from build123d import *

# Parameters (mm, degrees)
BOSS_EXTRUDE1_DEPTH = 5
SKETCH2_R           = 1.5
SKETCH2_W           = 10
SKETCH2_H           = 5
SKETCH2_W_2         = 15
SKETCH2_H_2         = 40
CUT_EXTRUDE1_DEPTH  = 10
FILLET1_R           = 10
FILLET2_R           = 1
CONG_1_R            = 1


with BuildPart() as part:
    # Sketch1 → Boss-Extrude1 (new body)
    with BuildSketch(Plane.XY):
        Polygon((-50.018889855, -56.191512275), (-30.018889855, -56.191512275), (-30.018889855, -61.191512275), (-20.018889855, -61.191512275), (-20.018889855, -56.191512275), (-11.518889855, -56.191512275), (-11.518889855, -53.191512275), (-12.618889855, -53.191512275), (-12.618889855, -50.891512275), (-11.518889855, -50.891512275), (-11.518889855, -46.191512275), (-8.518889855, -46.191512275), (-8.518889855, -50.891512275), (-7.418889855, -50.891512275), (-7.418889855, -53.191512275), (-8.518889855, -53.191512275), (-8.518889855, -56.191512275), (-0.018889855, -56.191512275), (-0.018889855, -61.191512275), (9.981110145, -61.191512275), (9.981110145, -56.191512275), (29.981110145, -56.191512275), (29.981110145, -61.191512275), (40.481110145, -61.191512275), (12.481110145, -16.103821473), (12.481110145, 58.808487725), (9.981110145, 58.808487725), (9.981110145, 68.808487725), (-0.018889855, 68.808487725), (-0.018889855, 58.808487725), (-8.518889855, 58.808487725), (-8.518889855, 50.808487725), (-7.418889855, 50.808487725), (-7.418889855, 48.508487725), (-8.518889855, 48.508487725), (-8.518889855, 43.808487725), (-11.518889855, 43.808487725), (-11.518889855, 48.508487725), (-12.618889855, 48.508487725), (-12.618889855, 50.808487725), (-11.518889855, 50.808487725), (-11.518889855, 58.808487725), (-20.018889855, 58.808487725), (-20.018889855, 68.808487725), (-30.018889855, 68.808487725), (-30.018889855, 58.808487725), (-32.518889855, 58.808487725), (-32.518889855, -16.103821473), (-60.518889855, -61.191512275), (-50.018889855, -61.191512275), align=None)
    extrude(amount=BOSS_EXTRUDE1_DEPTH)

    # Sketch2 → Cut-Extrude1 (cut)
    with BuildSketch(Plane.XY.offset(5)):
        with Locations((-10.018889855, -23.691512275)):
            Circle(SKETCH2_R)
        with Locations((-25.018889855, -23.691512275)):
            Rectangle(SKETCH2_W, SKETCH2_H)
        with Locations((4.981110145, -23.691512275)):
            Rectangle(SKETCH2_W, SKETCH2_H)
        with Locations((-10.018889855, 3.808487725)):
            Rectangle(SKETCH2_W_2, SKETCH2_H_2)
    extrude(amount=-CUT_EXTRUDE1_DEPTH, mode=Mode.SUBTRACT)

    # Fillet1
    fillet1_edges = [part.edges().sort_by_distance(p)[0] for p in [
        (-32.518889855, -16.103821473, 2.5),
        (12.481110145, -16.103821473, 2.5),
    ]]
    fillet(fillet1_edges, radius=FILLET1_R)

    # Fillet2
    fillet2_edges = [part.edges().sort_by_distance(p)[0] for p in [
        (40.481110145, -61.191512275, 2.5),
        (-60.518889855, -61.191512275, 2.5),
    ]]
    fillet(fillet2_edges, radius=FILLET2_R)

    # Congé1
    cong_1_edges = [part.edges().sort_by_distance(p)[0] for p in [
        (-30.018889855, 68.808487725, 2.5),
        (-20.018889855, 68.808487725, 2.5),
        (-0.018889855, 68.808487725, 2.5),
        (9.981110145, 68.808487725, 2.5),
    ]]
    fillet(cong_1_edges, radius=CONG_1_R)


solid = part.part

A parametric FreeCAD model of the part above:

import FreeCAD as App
import Part
import Sketcher
from FreeCAD import Vector
Q = App.Units.Quantity


def edges_at(feature, points):
    """Names of the edges that pass closest to the given points."""
    edges = feature.Shape.Edges
    near = lambda p: min(range(len(edges)), key=lambda i: edges[i].distToShape(Part.Vertex(*p))[0])
    return sorted({f"Edge{near(p) + 1}" for p in points})


def add_polygon(sketch, points):
    """Adds a closed chain of lines whose ends are joined by coincident constraints."""
    first, n = sketch.GeometryCount, len(points)
    for a, b in zip(points, points[1:] + points[:1]):
        sketch.addGeometry(Part.LineSegment(App.Vector(*a, 0), App.Vector(*b, 0)), False)
    for i in range(n):
        sketch.addConstraint(Sketcher.Constraint("Coincident", first + i, 2, first + (i + 1) % n, 1))

doc = App.newDocument("Part")
body = doc.addObject("PartDesign::Body", "Body")

sketch1 = body.newObject("Sketcher::SketchObject", "Sketch")
sketch1.AttachmentSupport = (doc.getObject("XY_Plane"), [""])
sketch1.MapMode = "FlatFace"
add_polygon(sketch1, [(-50, -56.2), (-30, -56.2), (-30, -61.2), (-20, -61.2), (-20, -56.2), (-11.5, -56.2), (-11.5, -53.2), (-12.6, -53.2), (-12.6, -50.9), (-11.5, -50.9), (-11.5, -46.2), (-8.5, -46.2), (-8.5, -50.9), (-7.4, -50.9), (-7.4, -53.2), (-8.5, -53.2), (-8.5, -56.2), (0, -56.2), (0, -61.2), (10, -61.2), (10, -56.2), (30, -56.2), (30, -61.2), (40.5, -61.2), (12.5, -16.1), (12.5, 58.8), (10, 58.8), (10, 68.8), (0, 68.8), (0, 58.8), (-8.5, 58.8), (-8.5, 50.8), (-7.4, 50.8), (-7.4, 48.5), (-8.5, 48.5), (-8.5, 43.8), (-11.5, 43.8), (-11.5, 48.5), (-12.6, 48.5), (-12.6, 50.8), (-11.5, 50.8), (-11.5, 58.8), (-20, 58.8), (-20, 68.8), (-30, 68.8), (-30, 58.8), (-32.5, 58.8), (-32.5, -16.1), (-60.5, -61.2), (-50, -61.2)])
sketch1.addConstraint(Sketcher.Constraint("Horizontal", 0))
sketch1.addConstraint(Sketcher.Constraint("Vertical", 1))
sketch1.addConstraint(Sketcher.Constraint("Horizontal", 2))
sketch1.addConstraint(Sketcher.Constraint("Vertical", 3))
sketch1.addConstraint(Sketcher.Constraint("Horizontal", 4))
sketch1.addConstraint(Sketcher.Constraint("Vertical", 5))
sketch1.addConstraint(Sketcher.Constraint("Horizontal", 6))
sketch1.addConstraint(Sketcher.Constraint("Vertical", 7))
sketch1.addConstraint(Sketcher.Constraint("Horizontal", 8))
sketch1.addConstraint(Sketcher.Constraint("Vertical", 9))
sketch1.addConstraint(Sketcher.Constraint("Horizontal", 10))
sketch1.addConstraint(Sketcher.Constraint("Vertical", 11))
sketch1.addConstraint(Sketcher.Constraint("Horizontal", 12))
sketch1.addConstraint(Sketcher.Constraint("Vertical", 13))
sketch1.addConstraint(Sketcher.Constraint("Horizontal", 14))
sketch1.addConstraint(Sketcher.Constraint("Vertical", 15))
sketch1.addConstraint(Sketcher.Constraint("Horizontal", 16))
sketch1.addConstraint(Sketcher.Constraint("Vertical", 17))
sketch1.addConstraint(Sketcher.Constraint("Horizontal", 18))
sketch1.addConstraint(Sketcher.Constraint("Vertical", 19))
sketch1.addConstraint(Sketcher.Constraint("Horizontal", 20))
sketch1.addConstraint(Sketcher.Constraint("Vertical", 21))
sketch1.addConstraint(Sketcher.Constraint("Horizontal", 22))
sketch1.addConstraint(Sketcher.Constraint("Vertical", 24))
sketch1.addConstraint(Sketcher.Constraint("Horizontal", 25))
sketch1.addConstraint(Sketcher.Constraint("Vertical", 26))
sketch1.addConstraint(Sketcher.Constraint("Horizontal", 27))
sketch1.addConstraint(Sketcher.Constraint("Vertical", 28))
sketch1.addConstraint(Sketcher.Constraint("Horizontal", 29))
sketch1.addConstraint(Sketcher.Constraint("Vertical", 30))
sketch1.addConstraint(Sketcher.Constraint("Horizontal", 31))
sketch1.addConstraint(Sketcher.Constraint("Vertical", 32))
sketch1.addConstraint(Sketcher.Constraint("Horizontal", 33))
sketch1.addConstraint(Sketcher.Constraint("Vertical", 34))
sketch1.addConstraint(Sketcher.Constraint("Horizontal", 35))
sketch1.addConstraint(Sketcher.Constraint("Vertical", 36))
sketch1.addConstraint(Sketcher.Constraint("Horizontal", 37))
sketch1.addConstraint(Sketcher.Constraint("Vertical", 38))
sketch1.addConstraint(Sketcher.Constraint("Horizontal", 39))
sketch1.addConstraint(Sketcher.Constraint("Vertical", 40))
sketch1.addConstraint(Sketcher.Constraint("Horizontal", 41))
sketch1.addConstraint(Sketcher.Constraint("Vertical", 42))
sketch1.addConstraint(Sketcher.Constraint("Horizontal", 43))
sketch1.addConstraint(Sketcher.Constraint("Vertical", 44))
sketch1.addConstraint(Sketcher.Constraint("Horizontal", 45))
sketch1.addConstraint(Sketcher.Constraint("Vertical", 46))
sketch1.addConstraint(Sketcher.Constraint("Horizontal", 48))
sketch1.addConstraint(Sketcher.Constraint("Vertical", 49))
sketch1.addConstraint(Sketcher.Constraint("Horizontal", 0, 2, 3, 2))
sketch1.addConstraint(Sketcher.Constraint("Horizontal", 8, 2, 11, 2))
sketch1.addConstraint(Sketcher.Constraint("Horizontal", 6, 2, 13, 2))
sketch1.addConstraint(Sketcher.Constraint("Horizontal", 4, 2, 15, 2))
sketch1.addConstraint(Sketcher.Constraint("Horizontal", 2, 2, 17, 2))
sketch1.addConstraint(Sketcher.Constraint("Horizontal", 16, 2, 19, 2))
sketch1.addConstraint(Sketcher.Constraint("Horizontal", 18, 2, 21, 2))
sketch1.addConstraint(Sketcher.Constraint("Horizontal", 25, 2, 28, 2))
sketch1.addConstraint(Sketcher.Constraint("Horizontal", 33, 2, 36, 2))
sketch1.addConstraint(Sketcher.Constraint("Horizontal", 31, 2, 38, 2))
sketch1.addConstraint(Sketcher.Constraint("Horizontal", 29, 2, 40, 2))
sketch1.addConstraint(Sketcher.Constraint("Horizontal", 27, 2, 42, 2))
sketch1.addConstraint(Sketcher.Constraint("Horizontal", 41, 2, 44, 2))
sketch1.addConstraint(Sketcher.Constraint("Horizontal", 23, 2, 46, 2))
sketch1.addConstraint(Sketcher.Constraint("Horizontal", 22, 2, 47, 2))
sketch1.addConstraint(Sketcher.Constraint("Vertical", 5, 2, 8, 2))
sketch1.addConstraint(Sketcher.Constraint("Vertical", 11, 2, 14, 2))
sketch1.addConstraint(Sketcher.Constraint("Vertical", 19, 2, 25, 2))
sketch1.addConstraint(Sketcher.Constraint("Vertical", 17, 2, 27, 2))
sketch1.addConstraint(Sketcher.Constraint("Vertical", 15, 2, 29, 2))
sketch1.addConstraint(Sketcher.Constraint("Vertical", 13, 2, 31, 2))
sketch1.addConstraint(Sketcher.Constraint("Vertical", 30, 2, 33, 2))
sketch1.addConstraint(Sketcher.Constraint("Vertical", 9, 2, 35, 2))
sketch1.addConstraint(Sketcher.Constraint("Vertical", 7, 2, 37, 2))
sketch1.addConstraint(Sketcher.Constraint("Vertical", 36, 2, 39, 2))
sketch1.addConstraint(Sketcher.Constraint("Vertical", 3, 2, 41, 2))
sketch1.addConstraint(Sketcher.Constraint("Vertical", 1, 2, 43, 2))
sketch1.addConstraint(Sketcher.Constraint("Equal", 8, 12))
sketch1.addConstraint(Sketcher.Constraint("Equal", 4, 16))
sketch1.addConstraint(Sketcher.Constraint("Equal", 2, 18))
sketch1.addConstraint(Sketcher.Constraint("Equal", 0, 20))
sketch1.addConstraint(Sketcher.Constraint("Equal", 25, 45))
sketch1.addConstraint(Sketcher.Constraint("Equal", 22, 48))
sketch1.addConstraint(Sketcher.Constraint("Equal", 35, 5))
sketch1.addConstraint(Sketcher.Constraint("Equal", 43, 26))
sketch1.addConstraint(Sketcher.Constraint("Equal", 13, 32))
sketch1.addConstraint(Sketcher.Constraint("Equal", 11, 34))
sketch1.addConstraint(Sketcher.Constraint("DistanceX", 0, 1, 0, 2, Q("20 mm")))
sketch1.addConstraint(Sketcher.Constraint("DistanceX", 2, 1, 2, 2, Q("10 mm")))
sketch1.addConstraint(Sketcher.Constraint("DistanceX", 10, 1, 10, 2, Q("3 mm")))
sketch1.addConstraint(Sketcher.Constraint("DistanceY", 1, 2, 1, 1, Q("5 mm")))
sketch1.addConstraint(Sketcher.Constraint("DistanceY", 30, 2, 30, 1, Q("8 mm")))
sketch1.addConstraint(Sketcher.Constraint("DistanceX", 4, 1, 4, 2, Q("8.5 mm")))
sketch1.addConstraint(Sketcher.Constraint("DistanceX", 6, 2, 6, 1, Q("1.1 mm")))
sketch1.addConstraint(Sketcher.Constraint("DistanceX", 22, 1, 22, 2, Q("10.5 mm")))
sketch1.addConstraint(Sketcher.Constraint("DistanceX", 25, 2, 25, 1, Q("2.5 mm")))
sketch1.addConstraint(Sketcher.Constraint("DistanceY", 7, 1, 7, 2, Q("2.3 mm")))
sketch1.addConstraint(Sketcher.Constraint("DistanceY", 9, 1, 9, 2, Q("4.7 mm")))
sketch1.addConstraint(Sketcher.Constraint("DistanceY", 10, 2, 24, 2, Q("105 mm")))
sketch1.addConstraint(Sketcher.Constraint("DistanceY", 24, 1, 24, 2, Q("74.912309 mm")))
sketch1.addConstraint(Sketcher.Constraint("DistanceX", 0, 2, -1, 1, Q("30.01889 mm")))
sketch1.addConstraint(Sketcher.Constraint("DistanceY", 23, 2, -1, 1, Q("16.103821 mm")))
pad1 = body.newObject("PartDesign::Pad", "Pad")
pad1.Profile = sketch1
pad1.Length = 5

sketch2 = body.newObject("Sketcher::SketchObject", "Sketch001")
sketch2.AttachmentSupport = (doc.getObject("XY_Plane"), [""])
sketch2.MapMode = "FlatFace"
sketch2.AttachmentOffset = App.Placement(Vector(0, 0, 5), App.Rotation())
sketch2.addGeometry(Part.Circle(Vector(-10, -23.7, 0), Vector(0, 0, 1), 1.5), False)
add_polygon(sketch2, [(-30, -21.2), (-30, -26.2), (-20, -26.2), (-20, -21.2)])
add_polygon(sketch2, [(0, -21.2), (0, -26.2), (10, -26.2), (10, -21.2)])
add_polygon(sketch2, [(-17.5, 23.8), (-17.5, -16.2), (-2.5, -16.2), (-2.5, 23.8)])
sketch2.addConstraint(Sketcher.Constraint("Vertical", 1))
sketch2.addConstraint(Sketcher.Constraint("Horizontal", 2))
sketch2.addConstraint(Sketcher.Constraint("Vertical", 3))
sketch2.addConstraint(Sketcher.Constraint("Horizontal", 4))
sketch2.addConstraint(Sketcher.Constraint("Vertical", 5))
sketch2.addConstraint(Sketcher.Constraint("Horizontal", 6))
sketch2.addConstraint(Sketcher.Constraint("Vertical", 7))
sketch2.addConstraint(Sketcher.Constraint("Horizontal", 8))
sketch2.addConstraint(Sketcher.Constraint("Vertical", 9))
sketch2.addConstraint(Sketcher.Constraint("Horizontal", 10))
sketch2.addConstraint(Sketcher.Constraint("Vertical", 11))
sketch2.addConstraint(Sketcher.Constraint("Horizontal", 12))
sketch2.addConstraint(Sketcher.Constraint("Horizontal", 2, 2, 5, 2))
sketch2.addConstraint(Sketcher.Constraint("Horizontal", 4, 2, 7, 2))
sketch2.addConstraint(Sketcher.Constraint("Equal", 4, 6))
sketch2.addConstraint(Sketcher.Constraint("Diameter", 0, Q("3 mm")))
sketch2.addConstraint(Sketcher.Constraint("DistanceX", 2, 1, 2, 2, Q("10 mm")))
sketch2.addConstraint(Sketcher.Constraint("DistanceX", 10, 1, 10, 2, Q("15 mm")))
sketch2.addConstraint(Sketcher.Constraint("DistanceY", 1, 2, 1, 1, Q("5 mm")))
sketch2.addConstraint(Sketcher.Constraint("DistanceY", 9, 2, 9, 1, Q("40 mm")))
sketch2.addConstraint(Sketcher.Constraint("DistanceX", 1, 2, 0, 3, Q("20 mm")))
sketch2.addConstraint(Sketcher.Constraint("DistanceX", 0, 3, 5, 2, Q("10 mm")))
sketch2.addConstraint(Sketcher.Constraint("DistanceY", 3, 2, 9, 2, Q("5 mm")))
sketch2.addConstraint(Sketcher.Constraint("DistanceY", 1, 2, 0, 3, Q("2.5 mm")))
sketch2.addConstraint(Sketcher.Constraint("DistanceX", 3, 2, 9, 2, Q("2.5 mm")))
sketch2.addConstraint(Sketcher.Constraint("DistanceX", 0, 3, -1, 1, Q("10.01889 mm")))
sketch2.addConstraint(Sketcher.Constraint("DistanceY", 0, 3, -1, 1, Q("23.691512 mm")))
pocket1 = body.newObject("PartDesign::Pocket", "Pocket")
pocket1.Profile = sketch2
pocket1.Length = 10
doc.recompute()

fillet = body.newObject("PartDesign::Fillet", "Fillet")
fillet.Base = (pocket1, edges_at(pocket1, [(-32.519, -16.104, 2.5), (12.481, -16.104, 2.5)]))
fillet.Radius = 10
doc.recompute()

fillet2 = body.newObject("PartDesign::Fillet", "Fillet001")
fillet2.Base = (fillet, edges_at(fillet, [(40.481, -61.192, 2.5), (-60.519, -61.192, 2.5)]))
fillet2.Radius = 1
doc.recompute()

fillet3 = body.newObject("PartDesign::Fillet", "Fillet002")
fillet3.Base = (fillet2, edges_at(fillet2, [
    (-30.019, 68.808, 2.5),
    (-20.019, 68.808, 2.5),
    (-0.019, 68.808, 2.5),
    (9.981, 68.808, 2.5),
]))
fillet3.Radius = 1

doc.recompute()
